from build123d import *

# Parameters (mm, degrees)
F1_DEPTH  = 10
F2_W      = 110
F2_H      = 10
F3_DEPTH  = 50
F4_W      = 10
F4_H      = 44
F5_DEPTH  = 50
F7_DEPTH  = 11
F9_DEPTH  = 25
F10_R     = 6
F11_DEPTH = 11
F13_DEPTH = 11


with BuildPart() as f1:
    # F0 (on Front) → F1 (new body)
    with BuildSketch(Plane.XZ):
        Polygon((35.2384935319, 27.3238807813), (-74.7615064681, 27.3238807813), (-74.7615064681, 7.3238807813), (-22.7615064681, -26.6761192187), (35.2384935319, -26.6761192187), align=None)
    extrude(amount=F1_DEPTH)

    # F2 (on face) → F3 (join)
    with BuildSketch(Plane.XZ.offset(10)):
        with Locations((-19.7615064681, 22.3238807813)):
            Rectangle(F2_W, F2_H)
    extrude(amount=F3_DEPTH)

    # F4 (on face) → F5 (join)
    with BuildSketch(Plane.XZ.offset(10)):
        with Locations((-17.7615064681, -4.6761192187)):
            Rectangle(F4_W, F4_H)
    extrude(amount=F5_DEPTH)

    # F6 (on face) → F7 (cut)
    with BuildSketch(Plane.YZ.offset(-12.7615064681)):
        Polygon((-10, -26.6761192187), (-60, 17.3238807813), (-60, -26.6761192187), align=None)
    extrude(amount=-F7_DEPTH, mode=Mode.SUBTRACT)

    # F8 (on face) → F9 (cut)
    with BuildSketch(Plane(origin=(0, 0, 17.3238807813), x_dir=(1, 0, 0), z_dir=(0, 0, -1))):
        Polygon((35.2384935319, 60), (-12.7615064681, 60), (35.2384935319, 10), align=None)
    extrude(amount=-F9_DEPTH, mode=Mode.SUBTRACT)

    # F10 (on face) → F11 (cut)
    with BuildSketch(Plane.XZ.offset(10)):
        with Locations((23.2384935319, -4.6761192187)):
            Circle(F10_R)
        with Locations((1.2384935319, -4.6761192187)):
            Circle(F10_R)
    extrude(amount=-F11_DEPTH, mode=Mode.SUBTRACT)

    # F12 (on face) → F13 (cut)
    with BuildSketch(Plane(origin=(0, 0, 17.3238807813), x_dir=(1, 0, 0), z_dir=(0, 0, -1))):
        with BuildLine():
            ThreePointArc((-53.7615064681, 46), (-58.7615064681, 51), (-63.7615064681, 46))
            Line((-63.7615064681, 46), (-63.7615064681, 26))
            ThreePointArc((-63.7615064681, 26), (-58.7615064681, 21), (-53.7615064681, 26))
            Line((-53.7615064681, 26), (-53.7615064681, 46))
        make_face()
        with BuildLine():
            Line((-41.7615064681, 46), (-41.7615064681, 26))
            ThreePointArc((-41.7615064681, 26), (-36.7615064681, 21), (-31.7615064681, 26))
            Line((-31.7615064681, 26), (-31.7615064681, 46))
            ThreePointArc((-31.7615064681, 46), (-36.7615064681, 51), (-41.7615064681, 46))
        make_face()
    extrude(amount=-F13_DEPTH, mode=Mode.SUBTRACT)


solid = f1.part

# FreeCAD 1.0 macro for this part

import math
import FreeCAD as App
import Part
import Sketcher

V = App.Vector
Q = App.Units.Quantity


def add_polygon(sketch, points):
    """Adds a closed chain of lines whose ends are joined by coincident constraints."""
    first, n = sketch.GeometryCount, len(points)
    for a, b in zip(points, points[1:] + points[:1]):
        sketch.addGeometry(Part.LineSegment(App.Vector(*a, 0), App.Vector(*b, 0)), False)
    for i in range(n):
        sketch.addConstraint(Sketcher.Constraint("Coincident", first + i, 2, first + (i + 1) % n, 1))

doc = App.newDocument("Part")
body = doc.addObject("PartDesign::Body", "Body")

# Sketch on XZ plane
sketch1 = body.newObject("Sketcher::SketchObject", "Sketch")
sketch1.AttachmentSupport = (doc.getObject("XZ_Plane"), [""])
sketch1.MapMode = "FlatFace"
add_polygon(sketch1, [(35, 27), (-75, 27), (-75, 7), (-23, -27), (35, -27)])  # lines 0-4
sketch1.addConstraint(Sketcher.Constraint("Horizontal", 0))
sketch1.addConstraint(Sketcher.Constraint("Vertical", 1))
sketch1.addConstraint(Sketcher.Constraint("Horizontal", 3))
sketch1.addConstraint(Sketcher.Constraint("Vertical", 4))
sketch1.addConstraint(Sketcher.Constraint("DistanceX", 0, 2, 0, 1, Q("110 mm")))
sketch1.addConstraint(Sketcher.Constraint("DistanceX", 3, 1, 3, 2, Q("58 mm")))
sketch1.addConstraint(Sketcher.Constraint("DistanceY", 1, 2, 1, 1, Q("20 mm")))
sketch1.addConstraint(Sketcher.Constraint("DistanceY", 4, 1, 4, 2, Q("54 mm")))
sketch1.addConstraint(Sketcher.Constraint("DistanceY", -1, 1, 0, 2, Q("27.323881 mm")))
sketch1.addConstraint(Sketcher.Constraint("DistanceX", 0, 2, -1, 1, Q("74.761506 mm")))
pad1 = body.newObject("PartDesign::Pad", "Pad")
pad1.Profile = sketch1
pad1.Length = 10

# Sketch on XZ plane
sketch2 = body.newObject("Sketcher::SketchObject", "Sketch001")
sketch2.AttachmentSupport = (doc.getObject("XZ_Plane"), [""])
sketch2.MapMode = "FlatFace"
sketch2.AttachmentOffset = App.Placement(V(0, 0, 10), App.Rotation())
add_polygon(sketch2, [(-75, 27), (-75, 17), (35, 17), (35, 27)])  # lines 0-3
sketch2.addConstraint(Sketcher.Constraint("Vertical", 0))
sketch2.addConstraint(Sketcher.Constraint("Horizontal", 1))
sketch2.addConstraint(Sketcher.Constraint("Vertical", 2))
sketch2.addConstraint(Sketcher.Constraint("Horizontal", 3))
sketch2.addConstraint(Sketcher.Constraint("DistanceX", 1, 1, 1, 2, Q("110 mm")))
sketch2.addConstraint(Sketcher.Constraint("DistanceY", 0, 2, 0, 1, Q("10 mm")))
sketch2.addConstraint(Sketcher.Constraint("DistanceY", -1, 1, 0, 2, Q("17.323881 mm")))
sketch2.addConstraint(Sketcher.Constraint("DistanceX", 0, 2, -1, 1, Q("74.761506 mm")))
pad2 = body.newObject("PartDesign::Pad", "Pad001")
pad2.Profile = sketch2
pad2.Length = 50

# Sketch on XZ plane
sketch3 = body.newObject("Sketcher::SketchObject", "Sketch002")
sketch3.AttachmentSupport = (doc.getObject("XZ_Plane"), [""])
sketch3.MapMode = "FlatFace"
sketch3.AttachmentOffset = App.Placement(V(0, 0, 10), App.Rotation())
add_polygon(sketch3, [(-23, 17), (-23, -27), (-13, -27), (-13, 17)])  # lines 0-3
sketch3.addConstraint(Sketcher.Constraint("Vertical", 0))
sketch3.addConstraint(Sketcher.Constraint("Horizontal", 1))
sketch3.addConstraint(Sketcher.Constraint("Vertical", 2))
sketch3.addConstraint(Sketcher.Constraint("Horizontal", 3))
sketch3.addConstraint(Sketcher.Constraint("DistanceX", 1, 1, 1, 2, Q("10 mm")))
sketch3.addConstraint(Sketcher.Constraint("DistanceY", 0, 2, 0, 1, Q("44 mm")))
sketch3.addConstraint(Sketcher.Constraint("DistanceY", 0, 2, -1, 1, Q("26.676119 mm")))
sketch3.addConstraint(Sketcher.Constraint("DistanceX", 0, 2, -1, 1, Q("22.761506 mm")))
pad3 = body.newObject("PartDesign::Pad", "Pad002")
pad3.Profile = sketch3
pad3.Length = 50

# Sketch on YZ plane
sketch4 = body.newObject("Sketcher::SketchObject", "Sketch003")
sketch4.AttachmentSupport = (doc.getObject("YZ_Plane"), [""])
sketch4.MapMode = "FlatFace"
sketch4.AttachmentOffset = App.Placement(V(0, 0, -12.761506), App.Rotation())
add_polygon(sketch4, [(-10, -27), (-60, 17), (-60, -27)])  # lines 0-2
sketch4.addConstraint(Sketcher.Constraint("Vertical", 1))
sketch4.addConstraint(Sketcher.Constraint("Horizontal", 2))
sketch4.addConstraint(Sketcher.Constraint("DistanceX", 2, 1, 2, 2, Q("50 mm")))
sketch4.addConstraint(Sketcher.Constraint("DistanceY", 1, 2, 1, 1, Q("44 mm")))
sketch4.addConstraint(Sketcher.Constraint("DistanceX", 0, 2, -1, 1, Q("60 mm")))
sketch4.addConstraint(Sketcher.Constraint("DistanceY", -1, 1, 0, 2, Q("17.323881 mm")))
pocket1 = body.newObject("PartDesign::Pocket", "Pocket")
pocket1.Profile = sketch4
pocket1.Length = 11

# Sketch on XY plane
sketch5 = body.newObject("Sketcher::SketchObject", "Sketch004")
sketch5.AttachmentSupport = (doc.getObject("XY_Plane"), [""])
sketch5.MapMode = "FlatFace"
sketch5.AttachmentOffset = App.Placement(V(0, 0, 17.323881), App.Rotation())
add_polygon(sketch5, [(35, -60), (-13, -60), (35, -10)])  # lines 0-2
sketch5.addConstraint(Sketcher.Constraint("Horizontal", 0))
sketch5.addConstraint(Sketcher.Constraint("Vertical", 2))
sketch5.addConstraint(Sketcher.Constraint("DistanceX", 0, 2, 0, 1, Q("48 mm")))
sketch5.addConstraint(Sketcher.Constraint("DistanceY", 2, 2, 2, 1, Q("50 mm")))
sketch5.addConstraint(Sketcher.Constraint("DistanceY", 0, 2, -1, 1, Q("60 mm")))
sketch5.addConstraint(Sketcher.Constraint("DistanceX", 0, 2, -1, 1, Q("12.761506 mm")))
pocket2 = body.newObject("PartDesign::Pocket", "Pocket001")
pocket2.Profile = sketch5
pocket2.Length = 25
pocket2.Reversed = True

# Sketch on XZ plane
sketch6 = body.newObject("Sketcher::SketchObject", "Sketch005")
sketch6.AttachmentSupport = (doc.getObject("XZ_Plane"), [""])
sketch6.MapMode = "FlatFace"
sketch6.AttachmentOffset = App.Placement(V(0, 0, 10), App.Rotation())
sketch6.addGeometry(Part.Circle(V(23, -5, 0), V(0, 0, 1), 6), False)
sketch6.addGeometry(Part.Circle(V(1, -5, 0), V(0, 0, 1), 6), False)
sketch6.addConstraint(Sketcher.Constraint("Equal", 0, 1))
sketch6.addConstraint(Sketcher.Constraint("Horizontal", 0, 3, 1, 3))
sketch6.addConstraint(Sketcher.Constraint("Diameter", 0, Q("12 mm")))
sketch6.addConstraint(Sketcher.Constraint("DistanceX", 1, 3, 0, 3, Q("22 mm")))
sketch6.addConstraint(Sketcher.Constraint("DistanceY", 0, 3, -1, 1, Q("4.676119 mm")))
sketch6.addConstraint(Sketcher.Constraint("DistanceX", -1, 1, 0, 3, Q("23.238494 mm")))
pocket3 = body.newObject("PartDesign::Pocket", "Pocket002")
pocket3.Profile = sketch6
pocket3.Length = 11

# Sketch on XY plane
sketch7 = body.newObject("Sketcher::SketchObject", "Sketch006")
sketch7.AttachmentSupport = (doc.getObject("XY_Plane"), [""])
sketch7.MapMode = "FlatFace"
sketch7.AttachmentOffset = App.Placement(V(0, 0, 17.323881), App.Rotation())
sketch7.addGeometry(Part.ArcOfCircle(Part.Circle(V(-59, -46, 0), V(0, 0, 1), 5), math.radians(180), math.radians(360)), False)
sketch7.addGeometry(Part.LineSegment(V(-64, -46, 0), V(-64, -26, 0)), False)
sketch7.addGeometry(Part.ArcOfCircle(Part.Circle(V(-59, -26, 0), V(0, 0, 1), 5), math.radians(0), math.radians(180)), False)
sketch7.addGeometry(Part.LineSegment(V(-54, -26, 0), V(-54, -46, 0)), False)
sketch7.addGeometry(Part.LineSegment(V(-42, -46, 0), V(-42, -26, 0)), False)
sketch7.addGeometry(Part.ArcOfCircle(Part.Circle(V(-37, -26, 0), V(0, 0, 1), 5), math.radians(0), math.radians(180)), False)
sketch7.addGeometry(Part.LineSegment(V(-32, -26, 0), V(-32, -46, 0)), False)
sketch7.addGeometry(Part.ArcOfCircle(Part.Circle(V(-37, -46, 0), V(0, 0, 1), 5), math.radians(180), math.radians(360)), False)
sketch7.addConstraint(Sketcher.Constraint("Tangent", 0, 1, 1, 1))
sketch7.addConstraint(Sketcher.Constraint("Tangent", 1, 2, 2, 2))
sketch7.addConstraint(Sketcher.Constraint("Tangent", 2, 1, 3, 1))
sketch7.addConstraint(Sketcher.Constraint("Tangent", 3, 2, 0, 2))
sketch7.addConstraint(Sketcher.Constraint("Tangent", 4, 2, 5, 2))
sketch7.addConstraint(Sketcher.Constraint("Tangent", 5, 1, 6, 1))
sketch7.addConstraint(Sketcher.Constraint("Tangent", 6, 2, 7, 2))
sketch7.addConstraint(Sketcher.Constraint("Tangent", 7, 1, 4, 1))
sketch7.addConstraint(Sketcher.Constraint("Vertical", 1))
sketch7.addConstraint(Sketcher.Constraint("Vertical", 3))
sketch7.addConstraint(Sketcher.Constraint("Vertical", 4))
sketch7.addConstraint(Sketcher.Constraint("Vertical", 6))
sketch7.addConstraint(Sketcher.Constraint("Equal", 2, 5))
sketch7.addConstraint(Sketcher.Constraint("Horizontal", 2, 3, 5, 3))
sketch7.addConstraint(Sketcher.Constraint("Horizontal", 0, 3, 7, 3))
sketch7.addConstraint(Sketcher.Constraint("Radius", 0, Q("5 mm")))
sketch7.addConstraint(Sketcher.Constraint("DistanceY", 1, 1, 1, 2, Q("20 mm")))
sketch7.addConstraint(Sketcher.Constraint("DistanceY", 0, 3, -1, 1, Q("46 mm")))
sketch7.addConstraint(Sketcher.Constraint("DistanceX", 2, 3, 5, 3, Q("22 mm")))
sketch7.addConstraint(Sketcher.Constraint("DistanceX", 0, 3, -1, 1, Q("58.761506 mm")))
pocket4 = body.newObject("PartDesign::Pocket", "Pocket003")
pocket4.Profile = sketch7
pocket4.Length = 11
pocket4.Reversed = True

doc.recompute()
